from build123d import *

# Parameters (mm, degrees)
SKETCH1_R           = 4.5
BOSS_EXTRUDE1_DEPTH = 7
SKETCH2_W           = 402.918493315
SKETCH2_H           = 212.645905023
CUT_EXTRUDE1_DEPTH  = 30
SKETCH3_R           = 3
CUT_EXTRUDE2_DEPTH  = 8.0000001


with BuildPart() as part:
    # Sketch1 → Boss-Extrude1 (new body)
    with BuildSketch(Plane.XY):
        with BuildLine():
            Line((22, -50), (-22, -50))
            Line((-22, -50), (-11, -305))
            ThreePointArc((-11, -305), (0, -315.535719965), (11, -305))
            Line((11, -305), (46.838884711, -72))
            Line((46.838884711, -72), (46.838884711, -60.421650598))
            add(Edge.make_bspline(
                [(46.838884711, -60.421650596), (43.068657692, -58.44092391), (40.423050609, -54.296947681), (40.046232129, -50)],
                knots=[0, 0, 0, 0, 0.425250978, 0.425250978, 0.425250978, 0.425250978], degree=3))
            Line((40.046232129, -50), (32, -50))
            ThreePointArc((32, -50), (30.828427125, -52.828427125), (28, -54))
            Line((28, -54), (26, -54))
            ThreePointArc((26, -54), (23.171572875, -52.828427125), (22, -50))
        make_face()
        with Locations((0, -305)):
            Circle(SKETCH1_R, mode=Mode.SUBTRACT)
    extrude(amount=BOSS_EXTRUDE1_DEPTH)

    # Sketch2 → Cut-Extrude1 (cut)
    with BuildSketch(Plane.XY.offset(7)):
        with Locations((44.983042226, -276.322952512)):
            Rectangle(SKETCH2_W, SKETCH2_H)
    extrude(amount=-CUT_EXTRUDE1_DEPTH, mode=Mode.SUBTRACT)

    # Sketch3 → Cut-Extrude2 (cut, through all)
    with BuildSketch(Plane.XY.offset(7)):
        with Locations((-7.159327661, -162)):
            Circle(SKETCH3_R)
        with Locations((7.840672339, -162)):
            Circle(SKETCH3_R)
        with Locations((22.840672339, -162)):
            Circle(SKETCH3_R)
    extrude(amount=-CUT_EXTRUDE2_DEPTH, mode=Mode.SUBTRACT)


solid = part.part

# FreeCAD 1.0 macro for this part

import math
import FreeCAD as App
import Part
import Sketcher
from FreeCAD import Vector

doc = App.newDocument("Part")
body = doc.addObject("PartDesign::Body", "Body")

# Sketch on XY plane
sketch1 = body.newObject("Sketcher::SketchObject", "Sketch")
sketch1.AttachmentSupport = (doc.getObject("XY_Plane"), [""])
sketch1.MapMode = "FlatFace"
sketch1.addGeometry(Part.LineSegment(Vector(22, -50, 0), Vector(-22, -50, 0)), False)
sketch1.addGeometry(Part.LineSegment(Vector(-22, -50, 0), Vector(-11, -305, 0)), False)
sketch1.addGeometry(Part.ArcOfCircle(Part.Circle(Vector(0, -304.52549, 0), Vector(0, 0, 1), 11.01023), math.radians(-177.529949), math.radians(-2.470051)), False)
sketch1.addGeometry(Part.LineSegment(Vector(11, -305, 0), Vector(46.838885, -72, 0)), False)
sketch1.addGeometry(Part.LineSegment(Vector(46.838885, -72, 0), Vector(46.838885, -60.421651, 0)), False)
sketch1.addGeometry(Part.BSplineCurve([Vector(46.838885, -60.421651, 0), Vector(43.068658, -58.440924, 0), Vector(40.423051, -54.296948, 0), Vector(40.046232, -50, 0)], [4, 4], [0, 0.425250978], False, 3, [1, 1, 1, 1], False), False)
sketch1.addGeometry(Part.LineSegment(Vector(40.046232, -50, 0), Vector(32, -50, 0)), False)
sketch1.addGeometry(Part.ArcOfCircle(Part.Circle(Vector(28, -50, 0), Vector(0, 0, 1), 4), math.radians(-90), math.radians(0)), False)
sketch1.addGeometry(Part.LineSegment(Vector(28, -54, 0), Vector(26, -54, 0)), False)
sketch1.addGeometry(Part.ArcOfCircle(Part.Circle(Vector(26, -50, 0), Vector(0, 0, 1), 4), math.radians(180), math.radians(270)), False)
sketch1.addGeometry(Part.Circle(Vector(0, -305, 0), Vector(0, 0, 1), 4.5), False)
sketch1.addConstraint(Sketcher.Constraint("Block", 5))
sketch1.addConstraint(Sketcher.Constraint("Coincident", 0, 2, 1, 1))
sketch1.addConstraint(Sketcher.Constraint("Tangent", 1, 2, 2, 1))
sketch1.addConstraint(Sketcher.Constraint("Coincident", 2, 2, 3, 1))
sketch1.addConstraint(Sketcher.Constraint("Coincident", 3, 2, 4, 1))
sketch1.addConstraint(Sketcher.Constraint("Coincident", 4, 2, 5, 1))
sketch1.addConstraint(Sketcher.Constraint("Coincident", 5, 2, 6, 1))
sketch1.addConstraint(Sketcher.Constraint("Coincident", 6, 2, 7, 2))
sketch1.addConstraint(Sketcher.Constraint("Tangent", 7, 1, 8, 1))
sketch1.addConstraint(Sketcher.Constraint("Tangent", 8, 2, 9, 2))
sketch1.addConstraint(Sketcher.Constraint("Coincident", 9, 1, 0, 1))
sketch1.addConstraint(Sketcher.Constraint("Horizontal", 0))
sketch1.addConstraint(Sketcher.Constraint("Vertical", 4))
sketch1.addConstraint(Sketcher.Constraint("Horizontal", 6))
sketch1.addConstraint(Sketcher.Constraint("Horizontal", 8))
sketch1.addConstraint(Sketcher.Constraint("Equal", 7, 9))
sketch1.addConstraint(Sketcher.Constraint("Symmetric", 1, 2, 2, 2, -2))
sketch1.addConstraint(Sketcher.Constraint("PointOnObject", 10, 3, -2))
sketch1.addConstraint(Sketcher.Constraint("Horizontal", 9, 3, 0, 2))
sketch1.addConstraint(Sketcher.Constraint("Horizontal", 10, 3, 1, 2))
sketch1.addConstraint(Sketcher.Constraint("Horizontal", 0, 2, 6, 2))
sketch1.addConstraint(Sketcher.Constraint("Diameter", 10, 9.0))
sketch1.addConstraint(Sketcher.Constraint("Radius", 7, 4.0))
sketch1.addConstraint(Sketcher.Constraint("DistanceX", 0, 2, 0, 1, 44.0))
sketch1.addConstraint(Sketcher.Constraint("DistanceX", 8, 2, 8, 1, 2.0))
sketch1.addConstraint(Sketcher.Constraint("DistanceX", -1, 1, 7, 3, 28.0))
sketch1.addConstraint(Sketcher.Constraint("DistanceY", 10, 3, -1, 1, 305.0))
sketch1.addConstraint(Sketcher.Constraint("DistanceX", 1, 2, -1, 1, 11.0))
sketch1.addConstraint(Sketcher.Constraint("DistanceY", 3, 2, -1, 1, 72.0))
pad1 = body.newObject("PartDesign::Pad", "Pad")
pad1.Profile = sketch1
pad1.Length = 7

# Sketch on XY plane
sketch2 = body.newObject("Sketcher::SketchObject", "Sketch001")
sketch2.AttachmentSupport = (doc.getObject("XY_Plane"), [""])
sketch2.MapMode = "FlatFace"
sketch2.AttachmentOffset = App.Placement(Vector(0, 0, 7), App.Rotation())
sketch2.addGeometry(Part.LineSegment(Vector(-156, -170, 0), Vector(-156, -383, 0)), False)
sketch2.addGeometry(Part.LineSegment(Vector(-156, -383, 0), Vector(246, -383, 0)), False)
sketch2.addGeometry(Part.LineSegment(Vector(246, -383, 0), Vector(246, -170, 0)), False)
sketch2.addGeometry(Part.LineSegment(Vector(246, -170, 0), Vector(-156, -170, 0)), False)
sketch2.addConstraint(Sketcher.Constraint("Coincident", 0, 2, 1, 1))
sketch2.addConstraint(Sketcher.Constraint("Coincident", 1, 2, 2, 1))
sketch2.addConstraint(Sketcher.Constraint("Coincident", 2, 2, 3, 1))
sketch2.addConstraint(Sketcher.Constraint("Coincident", 3, 2, 0, 1))
sketch2.addConstraint(Sketcher.Constraint("Vertical", 0))
sketch2.addConstraint(Sketcher.Constraint("Horizontal", 1))
sketch2.addConstraint(Sketcher.Constraint("Vertical", 2))
sketch2.addConstraint(Sketcher.Constraint("Horizontal", 3))
sketch2.addConstraint(Sketcher.Constraint("DistanceY", 2, 2, -1, 1, 170.0))
sketch2.addConstraint(Sketcher.Constraint("DistanceX", 1, 1, 1, 2, 402.918493))
sketch2.addConstraint(Sketcher.Constraint("DistanceY", 0, 2, 0, 1, 212.645905))
sketch2.addConstraint(Sketcher.Constraint("DistanceX", -1, 1, 1, 2, 246.442289))
pocket1 = body.newObject("PartDesign::Pocket", "Pocket")
pocket1.Profile = sketch2
pocket1.Length = 30

# Sketch on XY plane
sketch3 = body.newObject("Sketcher::SketchObject", "Sketch002")
sketch3.AttachmentSupport = (doc.getObject("XY_Plane"), [""])
sketch3.MapMode = "FlatFace"
sketch3.AttachmentOffset = App.Placement(Vector(0, 0, 7), App.Rotation())
sketch3.addGeometry(Part.Circle(Vector(-7.2, -162, 0), Vector(0, 0, 1), 3), False)
sketch3.addGeometry(Part.Circle(Vector(7.8, -162, 0), Vector(0, 0, 1), 3), False)
sketch3.addGeometry(Part.Circle(Vector(22.8, -162, 0), Vector(0, 0, 1), 3), False)
sketch3.addConstraint(Sketcher.Constraint("Equal", 0, 1))
sketch3.addConstraint(Sketcher.Constraint("Equal", 1, 2))
sketch3.addConstraint(Sketcher.Constraint("Horizontal", 0, 3, 1, 3))
sketch3.addConstraint(Sketcher.Constraint("Horizontal", 1, 3, 2, 3))
sketch3.addConstraint(Sketcher.Constraint("Diameter", 0, 6.0))
sketch3.addConstraint(Sketcher.Constraint("DistanceY", 0, 3, -1, 1, 162.0))
sketch3.addConstraint(Sketcher.Constraint("DistanceX", 0, 3, 1, 3, 15.0))
sketch3.addConstraint(Sketcher.Constraint("DistanceX", 1, 3, 2, 3, 15.0))
sketch3.addConstraint(Sketcher.Constraint("DistanceX", 0, 3, -1, 1, 7.159328))
pocket2 = body.newObject("PartDesign::Pocket", "Pocket001")
pocket2.Profile = sketch3
pocket2.Type = "ThroughAll"

doc.recompute()
